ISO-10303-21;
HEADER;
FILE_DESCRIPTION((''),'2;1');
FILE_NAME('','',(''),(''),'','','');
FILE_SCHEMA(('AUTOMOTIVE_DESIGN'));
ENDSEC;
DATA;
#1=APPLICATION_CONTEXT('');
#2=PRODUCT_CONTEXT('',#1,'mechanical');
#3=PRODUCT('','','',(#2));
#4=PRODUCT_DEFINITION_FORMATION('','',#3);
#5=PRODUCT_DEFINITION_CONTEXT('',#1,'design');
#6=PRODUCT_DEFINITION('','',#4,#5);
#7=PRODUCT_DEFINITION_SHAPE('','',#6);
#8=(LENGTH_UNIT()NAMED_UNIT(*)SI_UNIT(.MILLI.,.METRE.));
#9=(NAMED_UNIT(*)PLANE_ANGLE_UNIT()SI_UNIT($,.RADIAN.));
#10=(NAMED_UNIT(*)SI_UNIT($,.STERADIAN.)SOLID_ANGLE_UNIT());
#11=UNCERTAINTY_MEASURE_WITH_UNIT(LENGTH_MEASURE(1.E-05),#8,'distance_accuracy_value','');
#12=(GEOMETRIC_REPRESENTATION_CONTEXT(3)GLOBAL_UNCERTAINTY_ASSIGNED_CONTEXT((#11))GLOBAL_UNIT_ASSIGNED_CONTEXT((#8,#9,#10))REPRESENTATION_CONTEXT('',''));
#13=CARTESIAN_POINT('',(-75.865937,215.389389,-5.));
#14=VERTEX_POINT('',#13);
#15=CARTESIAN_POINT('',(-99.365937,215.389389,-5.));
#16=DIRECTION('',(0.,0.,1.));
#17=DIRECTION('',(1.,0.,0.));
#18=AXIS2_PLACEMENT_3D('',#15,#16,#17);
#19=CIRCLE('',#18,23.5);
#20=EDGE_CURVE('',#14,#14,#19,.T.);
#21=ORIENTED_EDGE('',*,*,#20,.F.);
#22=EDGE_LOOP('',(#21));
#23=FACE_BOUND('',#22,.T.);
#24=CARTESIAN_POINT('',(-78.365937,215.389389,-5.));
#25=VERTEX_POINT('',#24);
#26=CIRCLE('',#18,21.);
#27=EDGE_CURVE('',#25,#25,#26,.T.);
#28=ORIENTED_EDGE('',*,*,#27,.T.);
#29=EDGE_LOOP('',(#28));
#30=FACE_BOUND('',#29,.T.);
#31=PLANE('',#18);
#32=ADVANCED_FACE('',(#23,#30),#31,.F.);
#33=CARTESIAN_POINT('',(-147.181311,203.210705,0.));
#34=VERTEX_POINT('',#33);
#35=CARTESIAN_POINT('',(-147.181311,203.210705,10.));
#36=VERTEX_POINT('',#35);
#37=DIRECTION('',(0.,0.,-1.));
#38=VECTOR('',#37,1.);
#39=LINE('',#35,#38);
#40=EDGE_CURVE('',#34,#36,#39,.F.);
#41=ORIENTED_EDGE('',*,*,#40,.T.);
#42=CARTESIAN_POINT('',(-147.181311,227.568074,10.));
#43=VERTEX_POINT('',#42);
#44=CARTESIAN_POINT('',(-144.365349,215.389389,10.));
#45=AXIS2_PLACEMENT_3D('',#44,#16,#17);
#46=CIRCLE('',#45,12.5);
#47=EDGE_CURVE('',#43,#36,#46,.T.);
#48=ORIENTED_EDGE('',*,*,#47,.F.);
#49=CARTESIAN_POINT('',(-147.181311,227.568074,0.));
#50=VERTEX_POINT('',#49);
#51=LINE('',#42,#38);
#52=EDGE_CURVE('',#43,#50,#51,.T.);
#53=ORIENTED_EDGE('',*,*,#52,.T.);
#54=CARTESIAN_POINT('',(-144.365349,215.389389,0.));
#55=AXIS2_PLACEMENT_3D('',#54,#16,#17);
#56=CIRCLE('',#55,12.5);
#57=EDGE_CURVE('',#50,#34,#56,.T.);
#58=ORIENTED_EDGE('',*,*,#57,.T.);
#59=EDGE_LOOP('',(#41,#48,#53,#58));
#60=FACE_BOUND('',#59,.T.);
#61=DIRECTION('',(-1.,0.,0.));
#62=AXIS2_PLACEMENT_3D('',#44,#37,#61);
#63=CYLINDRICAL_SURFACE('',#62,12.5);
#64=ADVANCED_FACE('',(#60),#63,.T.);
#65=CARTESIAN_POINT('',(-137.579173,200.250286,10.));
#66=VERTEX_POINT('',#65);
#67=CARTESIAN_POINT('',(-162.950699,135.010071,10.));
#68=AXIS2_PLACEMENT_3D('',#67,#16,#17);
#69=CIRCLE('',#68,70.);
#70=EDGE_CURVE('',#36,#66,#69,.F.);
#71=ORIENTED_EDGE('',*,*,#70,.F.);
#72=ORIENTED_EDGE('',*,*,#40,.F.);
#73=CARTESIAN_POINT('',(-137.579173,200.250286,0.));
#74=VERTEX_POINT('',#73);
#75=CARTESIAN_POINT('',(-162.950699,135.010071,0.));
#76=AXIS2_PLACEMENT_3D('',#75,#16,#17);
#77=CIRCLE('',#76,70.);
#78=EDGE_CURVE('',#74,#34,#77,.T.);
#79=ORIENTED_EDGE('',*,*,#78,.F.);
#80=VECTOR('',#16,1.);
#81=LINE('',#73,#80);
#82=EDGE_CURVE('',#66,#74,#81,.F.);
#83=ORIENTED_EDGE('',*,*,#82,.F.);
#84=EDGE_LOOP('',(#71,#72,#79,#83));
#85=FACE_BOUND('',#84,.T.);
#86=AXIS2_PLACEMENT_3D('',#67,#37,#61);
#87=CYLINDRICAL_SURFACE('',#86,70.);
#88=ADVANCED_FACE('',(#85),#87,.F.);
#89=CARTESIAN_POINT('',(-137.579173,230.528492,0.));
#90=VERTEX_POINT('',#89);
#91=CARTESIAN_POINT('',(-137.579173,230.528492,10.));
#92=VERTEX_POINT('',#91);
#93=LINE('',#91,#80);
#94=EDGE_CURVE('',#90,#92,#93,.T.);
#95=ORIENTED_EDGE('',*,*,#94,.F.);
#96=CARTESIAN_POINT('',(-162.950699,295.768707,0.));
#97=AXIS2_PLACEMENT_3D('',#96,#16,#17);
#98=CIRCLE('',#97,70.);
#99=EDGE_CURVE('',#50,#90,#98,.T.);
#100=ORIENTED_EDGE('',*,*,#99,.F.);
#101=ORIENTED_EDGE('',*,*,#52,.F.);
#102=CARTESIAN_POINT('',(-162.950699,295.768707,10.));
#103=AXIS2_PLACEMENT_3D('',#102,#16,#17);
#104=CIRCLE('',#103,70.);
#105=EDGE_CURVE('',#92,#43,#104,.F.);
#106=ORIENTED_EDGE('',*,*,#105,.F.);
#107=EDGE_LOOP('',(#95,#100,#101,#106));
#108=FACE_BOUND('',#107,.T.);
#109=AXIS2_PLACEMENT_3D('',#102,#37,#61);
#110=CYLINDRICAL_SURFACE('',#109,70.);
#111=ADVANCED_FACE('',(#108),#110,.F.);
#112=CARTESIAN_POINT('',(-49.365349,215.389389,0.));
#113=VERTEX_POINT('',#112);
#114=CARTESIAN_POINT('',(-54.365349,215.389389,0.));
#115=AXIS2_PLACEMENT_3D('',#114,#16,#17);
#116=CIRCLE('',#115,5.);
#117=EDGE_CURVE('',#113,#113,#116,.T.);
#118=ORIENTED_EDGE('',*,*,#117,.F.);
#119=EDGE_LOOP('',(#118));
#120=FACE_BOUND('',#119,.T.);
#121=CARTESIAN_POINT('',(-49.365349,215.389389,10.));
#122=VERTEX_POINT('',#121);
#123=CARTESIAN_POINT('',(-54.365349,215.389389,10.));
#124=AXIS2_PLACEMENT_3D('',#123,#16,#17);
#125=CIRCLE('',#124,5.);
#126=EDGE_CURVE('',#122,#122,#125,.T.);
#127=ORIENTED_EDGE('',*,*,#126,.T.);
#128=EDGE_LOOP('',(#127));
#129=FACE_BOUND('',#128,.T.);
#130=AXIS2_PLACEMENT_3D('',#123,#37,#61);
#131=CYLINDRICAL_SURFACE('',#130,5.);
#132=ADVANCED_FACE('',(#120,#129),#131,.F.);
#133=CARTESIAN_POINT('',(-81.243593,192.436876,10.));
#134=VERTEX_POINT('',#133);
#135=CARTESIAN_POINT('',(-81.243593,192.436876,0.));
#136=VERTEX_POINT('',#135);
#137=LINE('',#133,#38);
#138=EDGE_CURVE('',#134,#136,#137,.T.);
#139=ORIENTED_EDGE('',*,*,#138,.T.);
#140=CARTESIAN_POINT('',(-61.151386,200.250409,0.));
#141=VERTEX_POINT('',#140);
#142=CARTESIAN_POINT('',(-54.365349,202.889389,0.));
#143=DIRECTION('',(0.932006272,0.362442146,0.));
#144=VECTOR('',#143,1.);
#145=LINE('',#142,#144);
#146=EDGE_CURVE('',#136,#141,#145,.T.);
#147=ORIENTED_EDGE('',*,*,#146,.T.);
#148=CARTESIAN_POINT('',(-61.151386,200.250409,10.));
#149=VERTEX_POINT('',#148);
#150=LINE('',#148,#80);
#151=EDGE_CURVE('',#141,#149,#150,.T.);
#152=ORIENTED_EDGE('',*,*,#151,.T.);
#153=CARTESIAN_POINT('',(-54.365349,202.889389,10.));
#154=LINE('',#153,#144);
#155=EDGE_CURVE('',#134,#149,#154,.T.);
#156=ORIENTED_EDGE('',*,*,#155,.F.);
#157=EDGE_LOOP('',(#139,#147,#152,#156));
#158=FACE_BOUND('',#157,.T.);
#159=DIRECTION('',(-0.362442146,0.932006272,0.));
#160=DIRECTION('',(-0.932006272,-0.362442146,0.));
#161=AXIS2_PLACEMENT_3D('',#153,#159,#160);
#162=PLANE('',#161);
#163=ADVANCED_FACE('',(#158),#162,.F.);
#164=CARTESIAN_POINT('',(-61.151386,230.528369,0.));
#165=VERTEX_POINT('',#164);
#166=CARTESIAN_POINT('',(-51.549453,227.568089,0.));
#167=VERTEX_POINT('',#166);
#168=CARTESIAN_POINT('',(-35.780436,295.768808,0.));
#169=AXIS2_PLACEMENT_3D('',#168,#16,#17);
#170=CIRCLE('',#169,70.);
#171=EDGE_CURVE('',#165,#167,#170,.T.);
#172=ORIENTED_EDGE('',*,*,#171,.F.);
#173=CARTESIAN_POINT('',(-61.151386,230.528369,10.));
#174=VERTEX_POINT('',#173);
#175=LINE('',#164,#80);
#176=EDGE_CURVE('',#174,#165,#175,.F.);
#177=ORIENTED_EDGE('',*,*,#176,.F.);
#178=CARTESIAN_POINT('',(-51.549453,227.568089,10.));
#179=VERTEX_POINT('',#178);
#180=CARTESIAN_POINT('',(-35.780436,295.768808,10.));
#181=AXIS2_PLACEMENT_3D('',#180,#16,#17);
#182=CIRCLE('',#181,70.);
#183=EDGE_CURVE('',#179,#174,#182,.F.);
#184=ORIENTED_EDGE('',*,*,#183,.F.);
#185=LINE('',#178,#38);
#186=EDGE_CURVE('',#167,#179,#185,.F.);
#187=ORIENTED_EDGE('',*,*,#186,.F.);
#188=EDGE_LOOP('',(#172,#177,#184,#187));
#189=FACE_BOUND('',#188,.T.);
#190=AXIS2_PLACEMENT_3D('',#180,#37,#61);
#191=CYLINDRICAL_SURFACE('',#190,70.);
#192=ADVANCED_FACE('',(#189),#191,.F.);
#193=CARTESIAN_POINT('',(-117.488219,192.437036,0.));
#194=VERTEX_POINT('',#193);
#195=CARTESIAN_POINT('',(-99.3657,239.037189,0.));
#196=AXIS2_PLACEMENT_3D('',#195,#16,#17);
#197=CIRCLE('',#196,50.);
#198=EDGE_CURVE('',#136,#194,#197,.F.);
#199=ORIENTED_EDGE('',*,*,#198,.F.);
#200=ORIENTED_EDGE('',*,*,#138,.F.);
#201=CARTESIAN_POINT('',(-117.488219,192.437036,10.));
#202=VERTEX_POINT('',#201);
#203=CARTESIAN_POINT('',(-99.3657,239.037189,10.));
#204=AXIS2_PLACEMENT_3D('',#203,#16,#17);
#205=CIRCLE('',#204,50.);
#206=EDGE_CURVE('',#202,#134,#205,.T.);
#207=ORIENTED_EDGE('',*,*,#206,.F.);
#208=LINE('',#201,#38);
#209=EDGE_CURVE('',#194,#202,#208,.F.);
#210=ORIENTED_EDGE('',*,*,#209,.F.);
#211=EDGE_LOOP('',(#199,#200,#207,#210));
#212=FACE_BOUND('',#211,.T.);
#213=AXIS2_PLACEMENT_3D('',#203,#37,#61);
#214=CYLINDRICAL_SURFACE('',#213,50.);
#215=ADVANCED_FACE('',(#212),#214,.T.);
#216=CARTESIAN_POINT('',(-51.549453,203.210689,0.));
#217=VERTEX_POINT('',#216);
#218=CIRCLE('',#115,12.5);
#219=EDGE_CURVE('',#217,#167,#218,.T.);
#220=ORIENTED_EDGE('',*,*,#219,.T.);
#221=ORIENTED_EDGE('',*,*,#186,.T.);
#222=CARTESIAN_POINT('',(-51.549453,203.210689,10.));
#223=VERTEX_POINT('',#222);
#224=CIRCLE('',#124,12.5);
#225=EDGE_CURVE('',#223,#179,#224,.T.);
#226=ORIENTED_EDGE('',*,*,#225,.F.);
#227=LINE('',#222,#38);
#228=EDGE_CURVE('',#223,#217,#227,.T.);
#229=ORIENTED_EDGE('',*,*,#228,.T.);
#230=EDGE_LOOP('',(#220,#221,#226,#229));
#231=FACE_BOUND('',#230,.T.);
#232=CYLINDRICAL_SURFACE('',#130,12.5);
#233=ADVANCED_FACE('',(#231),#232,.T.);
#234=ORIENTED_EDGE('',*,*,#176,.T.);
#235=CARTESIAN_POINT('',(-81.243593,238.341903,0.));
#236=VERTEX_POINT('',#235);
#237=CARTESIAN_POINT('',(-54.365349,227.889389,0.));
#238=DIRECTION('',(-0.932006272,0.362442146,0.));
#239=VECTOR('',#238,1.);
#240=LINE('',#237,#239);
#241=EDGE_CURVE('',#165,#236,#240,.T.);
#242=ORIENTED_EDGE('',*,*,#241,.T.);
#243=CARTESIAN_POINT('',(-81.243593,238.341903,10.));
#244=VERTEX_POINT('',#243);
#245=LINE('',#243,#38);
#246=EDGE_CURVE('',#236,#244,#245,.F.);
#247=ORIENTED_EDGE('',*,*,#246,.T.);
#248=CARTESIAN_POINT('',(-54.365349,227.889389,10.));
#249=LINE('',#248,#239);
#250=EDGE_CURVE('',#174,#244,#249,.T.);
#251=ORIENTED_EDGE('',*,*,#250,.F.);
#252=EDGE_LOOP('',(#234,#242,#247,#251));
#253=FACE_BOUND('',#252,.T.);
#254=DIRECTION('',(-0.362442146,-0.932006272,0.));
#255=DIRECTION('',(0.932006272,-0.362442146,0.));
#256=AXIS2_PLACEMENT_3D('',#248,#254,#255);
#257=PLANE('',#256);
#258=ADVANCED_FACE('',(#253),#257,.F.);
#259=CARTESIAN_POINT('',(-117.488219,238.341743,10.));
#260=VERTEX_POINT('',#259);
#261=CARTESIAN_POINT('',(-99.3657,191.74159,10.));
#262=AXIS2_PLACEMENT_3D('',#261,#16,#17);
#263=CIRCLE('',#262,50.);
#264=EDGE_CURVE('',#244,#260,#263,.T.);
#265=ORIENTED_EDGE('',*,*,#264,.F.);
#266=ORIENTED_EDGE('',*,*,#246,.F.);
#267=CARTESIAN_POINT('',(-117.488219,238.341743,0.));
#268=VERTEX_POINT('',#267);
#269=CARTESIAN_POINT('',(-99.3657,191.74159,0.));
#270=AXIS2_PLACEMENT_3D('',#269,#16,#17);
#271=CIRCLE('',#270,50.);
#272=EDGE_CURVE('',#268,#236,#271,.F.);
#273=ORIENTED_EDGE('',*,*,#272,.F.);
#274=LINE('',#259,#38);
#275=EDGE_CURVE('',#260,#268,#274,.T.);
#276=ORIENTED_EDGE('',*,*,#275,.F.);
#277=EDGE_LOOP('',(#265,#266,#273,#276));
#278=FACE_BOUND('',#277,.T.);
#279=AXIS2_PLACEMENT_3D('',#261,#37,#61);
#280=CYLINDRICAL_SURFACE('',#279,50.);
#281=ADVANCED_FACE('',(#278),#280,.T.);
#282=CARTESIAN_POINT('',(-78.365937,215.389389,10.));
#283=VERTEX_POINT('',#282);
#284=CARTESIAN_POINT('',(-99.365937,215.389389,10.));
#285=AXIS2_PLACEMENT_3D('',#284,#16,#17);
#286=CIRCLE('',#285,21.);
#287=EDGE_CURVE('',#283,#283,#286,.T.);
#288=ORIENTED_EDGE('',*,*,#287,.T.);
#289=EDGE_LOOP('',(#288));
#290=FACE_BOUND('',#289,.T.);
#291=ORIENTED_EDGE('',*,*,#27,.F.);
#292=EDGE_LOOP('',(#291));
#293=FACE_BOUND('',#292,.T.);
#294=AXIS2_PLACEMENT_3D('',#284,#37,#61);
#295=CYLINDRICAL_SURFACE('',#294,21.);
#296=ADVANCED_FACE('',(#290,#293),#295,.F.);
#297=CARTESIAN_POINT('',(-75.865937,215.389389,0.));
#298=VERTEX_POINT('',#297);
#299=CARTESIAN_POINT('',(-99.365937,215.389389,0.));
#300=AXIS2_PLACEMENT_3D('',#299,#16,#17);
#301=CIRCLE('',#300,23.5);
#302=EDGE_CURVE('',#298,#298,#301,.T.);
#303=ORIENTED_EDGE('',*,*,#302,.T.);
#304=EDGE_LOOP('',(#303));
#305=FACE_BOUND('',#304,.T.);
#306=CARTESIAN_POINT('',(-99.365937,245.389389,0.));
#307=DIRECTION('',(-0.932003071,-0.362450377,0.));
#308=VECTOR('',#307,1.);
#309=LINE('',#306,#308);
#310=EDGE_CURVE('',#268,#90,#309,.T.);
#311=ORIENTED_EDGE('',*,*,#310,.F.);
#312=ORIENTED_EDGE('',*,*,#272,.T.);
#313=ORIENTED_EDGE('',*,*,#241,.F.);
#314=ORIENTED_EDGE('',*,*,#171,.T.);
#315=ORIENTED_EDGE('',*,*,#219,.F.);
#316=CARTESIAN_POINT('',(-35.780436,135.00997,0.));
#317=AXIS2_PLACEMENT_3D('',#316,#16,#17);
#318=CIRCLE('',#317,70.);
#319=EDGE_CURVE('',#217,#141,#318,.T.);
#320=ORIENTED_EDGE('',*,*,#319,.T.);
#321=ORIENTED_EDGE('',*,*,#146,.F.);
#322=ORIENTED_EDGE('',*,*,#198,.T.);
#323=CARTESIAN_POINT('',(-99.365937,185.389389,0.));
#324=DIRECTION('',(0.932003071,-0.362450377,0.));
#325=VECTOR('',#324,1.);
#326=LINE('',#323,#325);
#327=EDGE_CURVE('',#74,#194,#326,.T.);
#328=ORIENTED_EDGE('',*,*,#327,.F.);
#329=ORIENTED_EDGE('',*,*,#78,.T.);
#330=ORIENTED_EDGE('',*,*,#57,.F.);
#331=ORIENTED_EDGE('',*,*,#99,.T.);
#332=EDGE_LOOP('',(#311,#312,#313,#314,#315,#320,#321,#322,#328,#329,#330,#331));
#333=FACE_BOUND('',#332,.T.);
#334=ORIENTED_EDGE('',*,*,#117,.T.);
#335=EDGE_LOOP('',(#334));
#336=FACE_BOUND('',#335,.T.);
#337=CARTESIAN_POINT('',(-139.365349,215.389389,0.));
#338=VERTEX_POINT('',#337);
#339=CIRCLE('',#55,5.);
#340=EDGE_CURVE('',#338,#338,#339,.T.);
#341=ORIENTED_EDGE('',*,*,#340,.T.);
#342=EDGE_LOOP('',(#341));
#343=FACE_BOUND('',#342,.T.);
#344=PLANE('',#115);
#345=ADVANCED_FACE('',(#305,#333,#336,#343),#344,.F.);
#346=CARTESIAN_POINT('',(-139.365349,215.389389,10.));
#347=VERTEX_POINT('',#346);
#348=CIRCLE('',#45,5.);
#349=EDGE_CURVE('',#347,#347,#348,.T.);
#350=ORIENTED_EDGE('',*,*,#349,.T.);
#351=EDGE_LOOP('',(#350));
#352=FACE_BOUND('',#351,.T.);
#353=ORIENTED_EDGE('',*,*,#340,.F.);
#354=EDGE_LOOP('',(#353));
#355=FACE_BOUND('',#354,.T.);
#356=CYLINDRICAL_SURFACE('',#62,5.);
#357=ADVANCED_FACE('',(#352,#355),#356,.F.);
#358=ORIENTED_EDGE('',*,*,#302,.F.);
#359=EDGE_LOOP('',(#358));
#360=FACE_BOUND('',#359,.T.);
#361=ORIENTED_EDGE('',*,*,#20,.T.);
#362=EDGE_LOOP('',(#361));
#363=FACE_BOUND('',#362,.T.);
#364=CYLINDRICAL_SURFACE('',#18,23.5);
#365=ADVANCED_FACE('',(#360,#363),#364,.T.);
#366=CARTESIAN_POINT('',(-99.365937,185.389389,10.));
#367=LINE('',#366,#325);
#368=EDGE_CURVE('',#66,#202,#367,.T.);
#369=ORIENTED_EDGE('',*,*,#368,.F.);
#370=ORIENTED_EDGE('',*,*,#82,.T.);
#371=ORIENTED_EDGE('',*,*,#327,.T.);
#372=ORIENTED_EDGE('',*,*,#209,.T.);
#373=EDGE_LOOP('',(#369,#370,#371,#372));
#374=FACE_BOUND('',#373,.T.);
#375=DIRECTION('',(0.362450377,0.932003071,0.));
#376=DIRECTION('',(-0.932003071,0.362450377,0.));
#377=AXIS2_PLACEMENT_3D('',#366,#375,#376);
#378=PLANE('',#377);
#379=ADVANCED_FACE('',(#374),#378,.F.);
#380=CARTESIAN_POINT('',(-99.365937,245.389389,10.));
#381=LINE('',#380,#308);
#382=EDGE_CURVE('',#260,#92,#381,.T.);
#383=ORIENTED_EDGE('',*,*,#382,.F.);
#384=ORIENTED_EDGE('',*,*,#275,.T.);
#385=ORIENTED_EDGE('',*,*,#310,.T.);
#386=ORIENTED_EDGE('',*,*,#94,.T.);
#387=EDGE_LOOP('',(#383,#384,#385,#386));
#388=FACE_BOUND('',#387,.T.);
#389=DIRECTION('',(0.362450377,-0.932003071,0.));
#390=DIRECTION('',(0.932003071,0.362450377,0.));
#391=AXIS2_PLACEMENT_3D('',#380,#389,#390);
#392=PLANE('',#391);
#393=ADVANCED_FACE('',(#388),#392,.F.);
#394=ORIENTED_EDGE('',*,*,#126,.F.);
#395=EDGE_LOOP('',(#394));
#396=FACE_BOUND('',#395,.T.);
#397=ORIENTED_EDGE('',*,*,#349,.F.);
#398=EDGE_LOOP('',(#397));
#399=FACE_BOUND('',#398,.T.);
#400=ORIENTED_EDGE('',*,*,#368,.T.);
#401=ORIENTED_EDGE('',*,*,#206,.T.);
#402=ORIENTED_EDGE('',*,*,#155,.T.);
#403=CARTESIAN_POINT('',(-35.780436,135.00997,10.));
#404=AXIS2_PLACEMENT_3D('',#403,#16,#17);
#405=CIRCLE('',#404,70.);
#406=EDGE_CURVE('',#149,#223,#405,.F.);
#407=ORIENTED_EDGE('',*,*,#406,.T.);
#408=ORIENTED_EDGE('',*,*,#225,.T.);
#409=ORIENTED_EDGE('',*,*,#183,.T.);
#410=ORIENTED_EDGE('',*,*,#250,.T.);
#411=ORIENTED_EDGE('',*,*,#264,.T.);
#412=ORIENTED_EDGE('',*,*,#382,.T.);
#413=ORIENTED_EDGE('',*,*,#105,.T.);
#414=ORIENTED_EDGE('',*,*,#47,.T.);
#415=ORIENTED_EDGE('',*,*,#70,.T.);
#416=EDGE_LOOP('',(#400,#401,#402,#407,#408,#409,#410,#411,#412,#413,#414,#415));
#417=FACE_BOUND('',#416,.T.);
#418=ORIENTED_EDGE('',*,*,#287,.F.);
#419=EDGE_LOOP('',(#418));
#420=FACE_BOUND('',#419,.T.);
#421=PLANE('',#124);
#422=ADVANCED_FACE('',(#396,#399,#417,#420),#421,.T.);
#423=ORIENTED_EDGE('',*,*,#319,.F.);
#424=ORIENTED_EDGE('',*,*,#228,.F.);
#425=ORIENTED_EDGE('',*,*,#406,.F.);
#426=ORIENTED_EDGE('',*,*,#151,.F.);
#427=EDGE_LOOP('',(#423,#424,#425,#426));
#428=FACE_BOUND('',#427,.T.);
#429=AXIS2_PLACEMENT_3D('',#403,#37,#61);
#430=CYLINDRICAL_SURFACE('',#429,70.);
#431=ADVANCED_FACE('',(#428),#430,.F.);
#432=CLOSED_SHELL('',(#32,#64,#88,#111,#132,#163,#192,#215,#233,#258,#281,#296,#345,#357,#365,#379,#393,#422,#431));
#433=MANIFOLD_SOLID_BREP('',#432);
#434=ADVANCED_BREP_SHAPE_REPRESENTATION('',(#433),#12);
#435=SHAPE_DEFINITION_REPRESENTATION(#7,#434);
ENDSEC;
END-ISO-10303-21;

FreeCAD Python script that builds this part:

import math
import FreeCAD as App
import Part
import Sketcher

V = App.Vector
Q = App.Units.Quantity


def edges_at(feature, points):
    """Names of the edges that pass closest to the given points."""
    edges = feature.Shape.Edges
    near = lambda p: min(range(len(edges)), key=lambda i: edges[i].distToShape(Part.Vertex(*p))[0])
    return sorted({f"Edge{near(p) + 1}" for p in points})

doc = App.newDocument("Part")
params = doc.addObject("Spreadsheet::Sheet", "Params")
for row, (alias, value) in enumerate([
    ("sketch1_diameter", "10 mm"),
    ("sketch1_diameter2", "42 mm"),
    ("sketch1_radius", "12.5 mm"),
    ("pad1_length", "10 mm"),
    ("fillet_radius", "50 mm"),
    ("fillet2_radius", "70 mm"),
    ("sketch2_diameter", "47 mm"),
    ("sketch2_diameter2", "42 mm"),
    ("pad2_length", "15 mm"),
], start=1):
    params.set(f"A{row}", alias)
    params.set(f"B{row}", "=" + value)
    params.setAlias(f"B{row}", alias)

body = doc.addObject("PartDesign::Body", "Body")

# Sketch on XY plane
sketch1 = body.newObject("Sketcher::SketchObject", "Sketch")
sketch1.AttachmentSupport = (doc.getObject("XY_Plane"), [""])
sketch1.MapMode = "FlatFace"
sketch1.addGeometry([
    Part.LineSegment(V(-54, 228, 0), V(-99, 245, 0)),  # 0
    Part.LineSegment(V(-99, 245, 0), V(-144, 228, 0)),  # 1
    Part.ArcOfCircle(Part.Circle(V(-144, 215, 0), V(0, 0, 1), 12), math.radians(90), math.radians(270)),  # 2
    Part.LineSegment(V(-144, 203, 0), V(-99, 185, 0)),  # 3
    Part.LineSegment(V(-99, 185, 0), V(-54, 203, 0)),  # 4
    Part.ArcOfCircle(Part.Circle(V(-54, 215, 0), V(0, 0, 1), 12), math.radians(-90), math.radians(90)),  # 5
    Part.Circle(V(-144, 215, 0), V(0, 0, 1), 5),  # 6
    Part.Circle(V(-99, 215, 0), V(0, 0, 1), 21),  # 7
    Part.Circle(V(-54, 215, 0), V(0, 0, 1), 5),  # 8
], False)
sketch1.addConstraint([
    Sketcher.Constraint("Coincident", 0, 2, 1, 1),
    Sketcher.Constraint("Coincident", 1, 2, 2, 1),
    Sketcher.Constraint("Coincident", 2, 2, 3, 1),
    Sketcher.Constraint("Coincident", 3, 2, 4, 1),
    Sketcher.Constraint("Coincident", 4, 2, 5, 1),
    Sketcher.Constraint("Coincident", 5, 2, 0, 1),
    Sketcher.Constraint("Coincident", 6, 3, 2, 3),
    Sketcher.Constraint("Coincident", 8, 3, 5, 3),
    Sketcher.Constraint("Equal", 2, 5),
    Sketcher.Constraint("Equal", 6, 8),
    Sketcher.Constraint("Horizontal", 2, 3, 5, 3),
    Sketcher.Constraint("Horizontal", 6, 3, 7, 3),
    Sketcher.Constraint("Vertical", 7, 3, 0, 2),
    Sketcher.Constraint("Vertical", 6, 3, 1, 2),
    Sketcher.Constraint("Vertical", 1, 2, 2, 2),
    Sketcher.Constraint("Vertical", 0, 2, 3, 2),
    Sketcher.Constraint("Vertical", 8, 3, 4, 2),
    Sketcher.Constraint("Vertical", 4, 2, 5, 2),
    Sketcher.Constraint("Equal", 1, 3),
    Sketcher.Constraint("Diameter", 6, Q("10 mm")),
    Sketcher.Constraint("Diameter", 7, Q("42 mm")),
    Sketcher.Constraint("Radius", 2, Q("12.5 mm")),
    Sketcher.Constraint("DistanceX", 2, 3, 5, 3, Q("90 mm")),
    Sketcher.Constraint("DistanceY", 7, 3, 0, 2, Q("30 mm")),
    Sketcher.Constraint("Distance", 0, Q("48.283568 mm")),
    Sketcher.Constraint("DistanceX", 2, 3, -1, 1, Q("144.365349 mm")),
    Sketcher.Constraint("DistanceY", -1, 1, 2, 3, Q("215.389389 mm")),
])
sketch1.setExpression("Constraints[19]", "Params.sketch1_diameter")
sketch1.setExpression("Constraints[20]", "Params.sketch1_diameter2")
sketch1.setExpression("Constraints[21]", "Params.sketch1_radius")
pad1 = body.newObject("PartDesign::Pad", "Pad")
pad1.Profile = sketch1
pad1.setExpression("Length", "Params.pad1_length")
doc.recompute()

fillet = body.newObject("PartDesign::Fillet", "Fillet")
fillet.Base = (pad1, edges_at(pad1, [(-99.366, 185.389, 5), (-99.366, 245.389, 5)]))
fillet.setExpression("Radius", "Params.fillet_radius")
doc.recompute()

fillet2 = body.newObject("PartDesign::Fillet", "Fillet001")
fillet2.Base = (fillet, edges_at(fillet, [
    (-54.365, 202.889, 5),
    (-144.365, 202.889, 5),
    (-144.365, 227.889, 5),
    (-54.365, 227.889, 5),
]))
fillet2.setExpression("Radius", "Params.fillet2_radius")

# Sketch on XY plane
sketch2 = body.newObject("Sketcher::SketchObject", "Sketch001")
sketch2.AttachmentSupport = (doc.getObject("XY_Plane"), [""])
sketch2.MapMode = "FlatFace"
sketch2.AttachmentOffset = App.Placement(V(0, 0, -5), App.Rotation())
sketch2.addGeometry([
    Part.Circle(V(-99, 215, 0), V(0, 0, 1), 24),
    Part.Circle(V(-99, 215, 0), V(0, 0, 1), 21),
], False)
sketch2.addConstraint([
    Sketcher.Constraint("Coincident", 1, 3, 0, 3),
    Sketcher.Constraint("Diameter", 0, Q("47 mm")),
    Sketcher.Constraint("Diameter", 1, Q("42 mm")),
    Sketcher.Constraint("DistanceY", -1, 1, 0, 3, Q("215.389389 mm")),
    Sketcher.Constraint("DistanceX", 0, 3, -1, 1, Q("99.365937 mm")),
])
sketch2.setExpression("Constraints[1]", "Params.sketch2_diameter")
sketch2.setExpression("Constraints[2]", "Params.sketch2_diameter2")
pad2 = body.newObject("PartDesign::Pad", "Pad001")
pad2.Profile = sketch2
pad2.setExpression("Length", "Params.pad2_length")

doc.recompute()
